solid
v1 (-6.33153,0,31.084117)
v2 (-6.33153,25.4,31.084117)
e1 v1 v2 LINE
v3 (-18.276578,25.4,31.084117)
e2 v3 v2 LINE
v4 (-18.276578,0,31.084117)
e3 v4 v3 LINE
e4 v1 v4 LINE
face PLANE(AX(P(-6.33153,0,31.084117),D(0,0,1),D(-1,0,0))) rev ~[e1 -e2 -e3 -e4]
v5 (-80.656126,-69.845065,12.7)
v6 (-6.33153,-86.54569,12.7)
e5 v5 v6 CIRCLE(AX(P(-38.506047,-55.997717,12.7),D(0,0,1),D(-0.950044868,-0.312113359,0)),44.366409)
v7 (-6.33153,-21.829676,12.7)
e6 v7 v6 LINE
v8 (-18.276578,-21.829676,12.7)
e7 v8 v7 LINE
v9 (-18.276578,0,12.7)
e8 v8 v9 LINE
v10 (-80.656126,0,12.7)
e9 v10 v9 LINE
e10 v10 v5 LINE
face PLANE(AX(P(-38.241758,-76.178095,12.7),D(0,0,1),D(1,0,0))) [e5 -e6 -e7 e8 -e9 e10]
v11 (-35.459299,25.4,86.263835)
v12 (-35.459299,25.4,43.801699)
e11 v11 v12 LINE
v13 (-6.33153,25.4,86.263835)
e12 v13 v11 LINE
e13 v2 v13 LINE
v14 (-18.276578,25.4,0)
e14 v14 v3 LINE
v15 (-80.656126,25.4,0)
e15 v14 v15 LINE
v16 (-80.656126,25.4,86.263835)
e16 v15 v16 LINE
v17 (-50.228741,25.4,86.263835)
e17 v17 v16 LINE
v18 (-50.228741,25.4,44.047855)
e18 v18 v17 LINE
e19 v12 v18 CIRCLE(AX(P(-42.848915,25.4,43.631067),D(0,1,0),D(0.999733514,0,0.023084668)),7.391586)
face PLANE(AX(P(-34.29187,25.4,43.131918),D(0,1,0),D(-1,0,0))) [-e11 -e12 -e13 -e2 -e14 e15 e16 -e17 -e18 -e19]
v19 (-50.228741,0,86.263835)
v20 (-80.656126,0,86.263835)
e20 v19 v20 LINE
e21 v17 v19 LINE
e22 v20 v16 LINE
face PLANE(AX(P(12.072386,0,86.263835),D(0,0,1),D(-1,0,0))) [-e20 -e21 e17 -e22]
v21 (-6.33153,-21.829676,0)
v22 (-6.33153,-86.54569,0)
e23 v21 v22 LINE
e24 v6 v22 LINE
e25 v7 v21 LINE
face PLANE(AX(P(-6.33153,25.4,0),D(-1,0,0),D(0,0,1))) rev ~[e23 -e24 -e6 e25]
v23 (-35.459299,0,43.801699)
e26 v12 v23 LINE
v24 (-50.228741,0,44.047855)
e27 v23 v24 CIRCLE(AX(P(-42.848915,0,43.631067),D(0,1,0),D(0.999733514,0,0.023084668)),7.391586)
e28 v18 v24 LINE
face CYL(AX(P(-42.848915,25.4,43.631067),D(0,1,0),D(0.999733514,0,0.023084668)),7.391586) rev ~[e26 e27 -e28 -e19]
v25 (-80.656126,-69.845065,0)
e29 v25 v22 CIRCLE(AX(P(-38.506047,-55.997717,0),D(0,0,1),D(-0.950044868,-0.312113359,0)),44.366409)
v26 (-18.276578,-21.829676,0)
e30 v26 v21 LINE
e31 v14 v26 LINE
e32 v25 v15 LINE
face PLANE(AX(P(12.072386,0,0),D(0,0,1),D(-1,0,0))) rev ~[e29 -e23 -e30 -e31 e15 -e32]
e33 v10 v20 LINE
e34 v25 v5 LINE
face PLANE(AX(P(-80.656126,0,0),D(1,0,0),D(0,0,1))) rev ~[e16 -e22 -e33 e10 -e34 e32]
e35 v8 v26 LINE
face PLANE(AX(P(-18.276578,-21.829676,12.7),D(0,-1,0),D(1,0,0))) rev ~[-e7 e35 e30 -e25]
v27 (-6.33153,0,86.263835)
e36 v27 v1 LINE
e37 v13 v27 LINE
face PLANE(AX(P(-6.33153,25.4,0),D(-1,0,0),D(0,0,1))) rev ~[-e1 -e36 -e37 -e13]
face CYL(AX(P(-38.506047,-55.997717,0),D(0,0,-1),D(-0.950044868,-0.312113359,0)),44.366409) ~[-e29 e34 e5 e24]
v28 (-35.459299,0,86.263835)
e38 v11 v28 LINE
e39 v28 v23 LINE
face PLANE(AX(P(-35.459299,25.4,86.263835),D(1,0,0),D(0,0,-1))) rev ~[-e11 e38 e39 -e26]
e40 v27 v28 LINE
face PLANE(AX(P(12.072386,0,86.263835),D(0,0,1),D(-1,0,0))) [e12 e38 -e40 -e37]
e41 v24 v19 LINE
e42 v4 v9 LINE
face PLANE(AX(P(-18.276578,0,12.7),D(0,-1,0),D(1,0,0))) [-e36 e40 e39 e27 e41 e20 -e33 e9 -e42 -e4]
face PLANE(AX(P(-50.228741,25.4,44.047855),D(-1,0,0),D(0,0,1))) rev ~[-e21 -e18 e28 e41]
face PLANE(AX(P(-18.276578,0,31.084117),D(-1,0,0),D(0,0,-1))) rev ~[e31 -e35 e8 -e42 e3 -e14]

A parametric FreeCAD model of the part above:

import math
import FreeCAD as App
import Part
import Sketcher
from FreeCAD import Vector
Q = App.Units.Quantity


def add_polygon(sketch, points):
    """Adds a closed chain of lines whose ends are joined by coincident constraints."""
    first, n = sketch.GeometryCount, len(points)
    for a, b in zip(points, points[1:] + points[:1]):
        sketch.addGeometry(Part.LineSegment(App.Vector(*a, 0), App.Vector(*b, 0)), False)
    for i in range(n):
        sketch.addConstraint(Sketcher.Constraint("Coincident", first + i, 2, first + (i + 1) % n, 1))

doc = App.newDocument("Part")
body = doc.addObject("PartDesign::Body", "Body")

# Sketch on XY plane
sketch1 = body.newObject("Sketcher::SketchObject", "Sketch")
sketch1.AttachmentSupport = (doc.getObject("XY_Plane"), [""])
sketch1.MapMode = "FlatFace"
sketch1.addGeometry([
    Part.ArcOfCircle(Part.Circle(Vector(-38.506047, -55.997717, 0), Vector(0, 0, 1), 44.366409), math.radians(-161.813362), math.radians(-9.795706)),
    Part.LineSegment(Vector(5.213528, -63.546024, 0), Vector(5.213528, 0, 0)),
    Part.LineSegment(Vector(5.213528, 0, 0), Vector(-80.656126, 0, 0)),
    Part.LineSegment(Vector(-80.656126, 0, 0), Vector(-80.656126, -69.845065, 0)),
], False)
sketch1.addConstraint([
    Sketcher.Constraint("Coincident", 0, 2, 1, 1),
    Sketcher.Constraint("Coincident", 1, 2, 2, 1),
    Sketcher.Constraint("Coincident", 2, 2, 3, 1),
    Sketcher.Constraint("Coincident", 3, 2, 0, 1),
    Sketcher.Constraint("Vertical", 1),
    Sketcher.Constraint("Horizontal", 2),
    Sketcher.Constraint("Vertical", 3),
    Sketcher.Constraint("PointOnObject", 1, 2, -1),
    Sketcher.Constraint("Radius", 0, Q("44.366409 mm")),
    Sketcher.Constraint("DistanceX", 2, 2, 2, 1, Q("85.869655 mm")),
    Sketcher.Constraint("DistanceY", 1, 1, 1, 2, Q("63.546024 mm")),
    Sketcher.Constraint("DistanceY", 3, 2, 3, 1, Q("69.845065 mm")),
    Sketcher.Constraint("DistanceX", -1, 1, 0, 2, Q("5.213528 mm")),
])
pad1 = body.newObject("PartDesign::Pad", "Pad")
pad1.Profile = sketch1
pad1.Length = Q("0.5 in")

# Sketch on XZ plane
sketch2 = body.newObject("Sketcher::SketchObject", "Sketch001")
sketch2.AttachmentSupport = (doc.getObject("XZ_Plane"), [""])
sketch2.MapMode = "FlatFace"
add_polygon(sketch2, [(12.072386, 86.263835), (12.072386, 0), (-80.656126, 0), (-80.656126, 86.263835)])  # lines 0-3
sketch2.addConstraint([
    Sketcher.Constraint("Vertical", 0),
    Sketcher.Constraint("Horizontal", 1),
    Sketcher.Constraint("Vertical", 2),
    Sketcher.Constraint("Horizontal", 3),
    Sketcher.Constraint("PointOnObject", 0, 2, -1),
    Sketcher.Constraint("DistanceX", 1, 2, 1, 1, Q("92.728512 mm")),
    Sketcher.Constraint("DistanceY", 0, 2, 0, 1, Q("86.263835 mm")),
    Sketcher.Constraint("DistanceX", -1, 1, 0, 2, Q("12.072386 mm")),
])
pad2 = body.newObject("PartDesign::Pad", "Pad001")
pad2.Profile = sketch2
pad2.Length = Q("1 in")
pad2.Reversed = True

# Sketch on XZ plane
sketch3 = body.newObject("Sketcher::SketchObject", "Sketch002")
sketch3.AttachmentSupport = (doc.getObject("XZ_Plane"), [""])
sketch3.MapMode = "FlatFace"
sketch3.AttachmentOffset = App.Placement(Vector(0, 0, -1 * 25.4), App.Rotation())
add_polygon(sketch3, [(12.072386, 86.263835), (12.072386, 0), (-6.33153, 0), (-6.33153, 86.263835)])  # lines 0-3
sketch3.addConstraint([
    Sketcher.Constraint("Vertical", 0),
    Sketcher.Constraint("Horizontal", 1),
    Sketcher.Constraint("Vertical", 2),
    Sketcher.Constraint("Horizontal", 3),
    Sketcher.Constraint("PointOnObject", 0, 2, -1),
    Sketcher.Constraint("DistanceX", 1, 2, 1, 1, Q("18.403917 mm")),
    Sketcher.Constraint("DistanceY", 0, 2, 0, 1, Q("86.263835 mm")),
    Sketcher.Constraint("DistanceX", 1, 2, -1, 1, Q("6.33153 mm")),
])
pocket1 = body.newObject("PartDesign::Pocket", "Pocket")
pocket1.Profile = sketch3
pocket1.Type = "ThroughAll"
pocket1.Reversed = True

# Sketch on XZ plane
sketch4 = body.newObject("Sketcher::SketchObject", "Sketch003")
sketch4.AttachmentSupport = (doc.getObject("XZ_Plane"), [""])
sketch4.MapMode = "FlatFace"
sketch4.AttachmentOffset = App.Placement(Vector(0, 0, -1 * 25.4), App.Rotation())
sketch4.addGeometry([
    Part.LineSegment(Vector(-35.459299, 86.263835, 0), Vector(-35.459299, 43.801699, 0)),
    Part.ArcOfCircle(Part.Circle(Vector(-42.848915, 43.631067, 0), Vector(0, 0, 1), 7.391586), math.radians(176.767557), math.radians(361.322772)),
    Part.LineSegment(Vector(-50.228741, 44.047855, 0), Vector(-50.228741, 86.263835, 0)),
    Part.LineSegment(Vector(-50.228741, 86.263835, 0), Vector(-35.459299, 86.263835, 0)),
], False)
sketch4.addConstraint([
    Sketcher.Constraint("Coincident", 0, 2, 1, 2),
    Sketcher.Constraint("Coincident", 1, 1, 2, 1),
    Sketcher.Constraint("Coincident", 2, 2, 3, 1),
    Sketcher.Constraint("Coincident", 3, 2, 0, 1),
    Sketcher.Constraint("Vertical", 0),
    Sketcher.Constraint("Vertical", 2),
    Sketcher.Constraint("Horizontal", 3),
    Sketcher.Constraint("Radius", 1, Q("7.391586 mm")),
    Sketcher.Constraint("DistanceY", 2, 1, 2, 2, Q("42.215981 mm")),
    Sketcher.Constraint("DistanceX", 0, 2, -1, 1, Q("35.459299 mm")),
    Sketcher.Constraint("DistanceY", -1, 1, 0, 2, Q("43.801699 mm")),
    Sketcher.Constraint("DistanceX", 3, 1, 3, 2, Q("14.769442 mm")),
    Sketcher.Constraint("DistanceY", 0, 2, 0, 1, Q("42.462137 mm")),
])
pocket2 = body.newObject("PartDesign::Pocket", "Pocket001")
pocket2.Profile = sketch4
pocket2.Type = "ThroughAll"
pocket2.Reversed = True

# Sketch on XY plane
sketch5 = body.newObject("Sketcher::SketchObject", "Sketch004")
sketch5.AttachmentSupport = (doc.getObject("XY_Plane"), [""])
sketch5.MapMode = "FlatFace"
sketch5.AttachmentOffset = App.Placement(Vector(0, 0, 0.5 * 25.4), App.Rotation())
add_polygon(sketch5, [(-18.276578, 0), (-18.276578, -21.829676), (-6.33153, -21.829676), (-6.33153, 0)])  # lines 0-3
sketch5.addConstraint([
    Sketcher.Constraint("Vertical", 0),
    Sketcher.Constraint("Horizontal", 1),
    Sketcher.Constraint("Vertical", 2),
    Sketcher.Constraint("Horizontal", 3),
    Sketcher.Constraint("PointOnObject", 2, 2, -1),
    Sketcher.Constraint("DistanceX", 1, 1, 1, 2, Q("11.945047 mm")),
    Sketcher.Constraint("DistanceY", 0, 2, 0, 1, Q("21.829676 mm")),
    Sketcher.Constraint("DistanceX", 1, 2, -1, 1, Q("6.33153 mm")),
])
pocket3 = body.newObject("PartDesign::Pocket", "Pocket002")
pocket3.Profile = sketch5
pocket3.Type = "ThroughAll"

# Sketch on XZ plane
sketch6 = body.newObject("Sketcher::SketchObject", "Sketch005")
sketch6.AttachmentSupport = (doc.getObject("XZ_Plane"), [""])
sketch6.MapMode = "FlatFace"
add_polygon(sketch6, [(-18.276578, 31.084117), (-18.276578, 0), (-6.33153, 0), (-6.33153, 31.084117)])  # lines 0-3
sketch6.addConstraint([
    Sketcher.Constraint("Vertical", 0),
    Sketcher.Constraint("Horizontal", 1),
    Sketcher.Constraint("Vertical", 2),
    Sketcher.Constraint("Horizontal", 3),
    Sketcher.Constraint("PointOnObject", 0, 2, -1),
    Sketcher.Constraint("DistanceX", 1, 1, 1, 2, Q("11.945047 mm")),
    Sketcher.Constraint("DistanceY", 0, 2, 0, 1, Q("31.084117 mm")),
    Sketcher.Constraint("DistanceX", 1, 2, -1, 1, Q("6.33153 mm")),
])
pocket4 = body.newObject("PartDesign::Pocket", "Pocket003")
pocket4.Profile = sketch6
pocket4.Type = "ThroughAll"

doc.recompute()
